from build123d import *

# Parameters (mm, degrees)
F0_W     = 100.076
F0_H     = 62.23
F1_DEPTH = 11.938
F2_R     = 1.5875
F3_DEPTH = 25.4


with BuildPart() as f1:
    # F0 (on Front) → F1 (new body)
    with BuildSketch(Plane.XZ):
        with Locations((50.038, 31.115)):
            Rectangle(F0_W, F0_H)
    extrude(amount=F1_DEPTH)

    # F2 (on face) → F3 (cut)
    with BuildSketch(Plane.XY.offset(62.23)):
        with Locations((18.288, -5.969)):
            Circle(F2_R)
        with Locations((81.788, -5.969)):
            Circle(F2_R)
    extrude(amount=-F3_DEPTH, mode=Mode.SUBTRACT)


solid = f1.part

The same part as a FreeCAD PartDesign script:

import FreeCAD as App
import Part
import Sketcher
Q = App.Units.Quantity


def add_polygon(sketch, points):
    """Adds a closed chain of lines whose ends are joined by coincident constraints."""
    first, n = sketch.GeometryCount, len(points)
    for a, b in zip(points, points[1:] + points[:1]):
        sketch.addGeometry(Part.LineSegment(App.Vector(*a, 0), App.Vector(*b, 0)), False)
    for i in range(n):
        sketch.addConstraint(Sketcher.Constraint("Coincident", first + i, 2, first + (i + 1) % n, 1))

doc = App.newDocument("Part")
params = doc.addObject("Spreadsheet::Sheet", "Params")
for row, (alias, value) in enumerate([
    ("sketch1_width", "3.94 in"),
    ("sketch1_height", "2.45 in"),
    ("pad1_length", "0.47 in"),
    ("sketch2_diameter", "0.125 in"),
    ("pocket1_length", "1 in"),
], start=1):
    params.set(f"A{row}", alias)
    params.set(f"B{row}", "=" + value)
    params.setAlias(f"B{row}", alias)

body = doc.addObject("PartDesign::Body", "Body")

sketch1 = body.newObject("Sketcher::SketchObject", "Sketch")
sketch1.AttachmentSupport = (doc.getObject("XZ_Plane"), [""])
sketch1.MapMode = "FlatFace"
add_polygon(sketch1, [(0, 62), (0, 0), (100, 0), (100, 62)])
sketch1.addConstraint([
    Sketcher.Constraint("Vertical", 0),
    Sketcher.Constraint("Horizontal", 1),
    Sketcher.Constraint("Vertical", 2),
    Sketcher.Constraint("Horizontal", 3),
    Sketcher.Constraint("Coincident", 0, 2, -1, 1),
    Sketcher.Constraint("DistanceX", 1, 1, 1, 2, Q("3.94 in")),
    Sketcher.Constraint("DistanceY", 0, 2, 0, 1, Q("2.45 in")),
])
sketch1.setExpression("Constraints[9]", "Params.sketch1_width")
sketch1.setExpression("Constraints[10]", "Params.sketch1_height")
pad1 = body.newObject("PartDesign::Pad", "Pad")
pad1.Profile = sketch1
pad1.setExpression("Length", "Params.pad1_length")

sketch2 = body.newObject("Sketcher::SketchObject", "Sketch001")
sketch2.AttachmentSupport = (doc.getObject("XY_Plane"), [""])
sketch2.MapMode = "FlatFace"
sketch2.AttachmentOffset = App.Placement(App.Vector(0, 0, 2.45 * 25.4), App.Rotation())
sketch2.addGeometry([
    Part.Circle(App.Vector(18.3, -6, 0), App.Vector(0, 0, 1), 1.6),
    Part.Circle(App.Vector(81.8, -6, 0), App.Vector(0, 0, 1), 1.6),
], False)
sketch2.addConstraint([
    Sketcher.Constraint("Equal", 0, 1),
    Sketcher.Constraint("Horizontal", 0, 3, 1, 3),
    Sketcher.Constraint("Diameter", 0, Q("0.125 in")),
    Sketcher.Constraint("DistanceX", 0, 3, 1, 3, Q("2.5 in")),
    Sketcher.Constraint("DistanceX", -1, 1, 0, 3, Q("0.72 in")),
    Sketcher.Constraint("DistanceY", 0, 3, -1, 1, Q("0.235 in")),
])
sketch2.setExpression("Constraints[2]", "Params.sketch2_diameter")
pocket1 = body.newObject("PartDesign::Pocket", "Pocket")
pocket1.Profile = sketch2
pocket1.setExpression("Length", "Params.pocket1_length")

doc.recompute()
